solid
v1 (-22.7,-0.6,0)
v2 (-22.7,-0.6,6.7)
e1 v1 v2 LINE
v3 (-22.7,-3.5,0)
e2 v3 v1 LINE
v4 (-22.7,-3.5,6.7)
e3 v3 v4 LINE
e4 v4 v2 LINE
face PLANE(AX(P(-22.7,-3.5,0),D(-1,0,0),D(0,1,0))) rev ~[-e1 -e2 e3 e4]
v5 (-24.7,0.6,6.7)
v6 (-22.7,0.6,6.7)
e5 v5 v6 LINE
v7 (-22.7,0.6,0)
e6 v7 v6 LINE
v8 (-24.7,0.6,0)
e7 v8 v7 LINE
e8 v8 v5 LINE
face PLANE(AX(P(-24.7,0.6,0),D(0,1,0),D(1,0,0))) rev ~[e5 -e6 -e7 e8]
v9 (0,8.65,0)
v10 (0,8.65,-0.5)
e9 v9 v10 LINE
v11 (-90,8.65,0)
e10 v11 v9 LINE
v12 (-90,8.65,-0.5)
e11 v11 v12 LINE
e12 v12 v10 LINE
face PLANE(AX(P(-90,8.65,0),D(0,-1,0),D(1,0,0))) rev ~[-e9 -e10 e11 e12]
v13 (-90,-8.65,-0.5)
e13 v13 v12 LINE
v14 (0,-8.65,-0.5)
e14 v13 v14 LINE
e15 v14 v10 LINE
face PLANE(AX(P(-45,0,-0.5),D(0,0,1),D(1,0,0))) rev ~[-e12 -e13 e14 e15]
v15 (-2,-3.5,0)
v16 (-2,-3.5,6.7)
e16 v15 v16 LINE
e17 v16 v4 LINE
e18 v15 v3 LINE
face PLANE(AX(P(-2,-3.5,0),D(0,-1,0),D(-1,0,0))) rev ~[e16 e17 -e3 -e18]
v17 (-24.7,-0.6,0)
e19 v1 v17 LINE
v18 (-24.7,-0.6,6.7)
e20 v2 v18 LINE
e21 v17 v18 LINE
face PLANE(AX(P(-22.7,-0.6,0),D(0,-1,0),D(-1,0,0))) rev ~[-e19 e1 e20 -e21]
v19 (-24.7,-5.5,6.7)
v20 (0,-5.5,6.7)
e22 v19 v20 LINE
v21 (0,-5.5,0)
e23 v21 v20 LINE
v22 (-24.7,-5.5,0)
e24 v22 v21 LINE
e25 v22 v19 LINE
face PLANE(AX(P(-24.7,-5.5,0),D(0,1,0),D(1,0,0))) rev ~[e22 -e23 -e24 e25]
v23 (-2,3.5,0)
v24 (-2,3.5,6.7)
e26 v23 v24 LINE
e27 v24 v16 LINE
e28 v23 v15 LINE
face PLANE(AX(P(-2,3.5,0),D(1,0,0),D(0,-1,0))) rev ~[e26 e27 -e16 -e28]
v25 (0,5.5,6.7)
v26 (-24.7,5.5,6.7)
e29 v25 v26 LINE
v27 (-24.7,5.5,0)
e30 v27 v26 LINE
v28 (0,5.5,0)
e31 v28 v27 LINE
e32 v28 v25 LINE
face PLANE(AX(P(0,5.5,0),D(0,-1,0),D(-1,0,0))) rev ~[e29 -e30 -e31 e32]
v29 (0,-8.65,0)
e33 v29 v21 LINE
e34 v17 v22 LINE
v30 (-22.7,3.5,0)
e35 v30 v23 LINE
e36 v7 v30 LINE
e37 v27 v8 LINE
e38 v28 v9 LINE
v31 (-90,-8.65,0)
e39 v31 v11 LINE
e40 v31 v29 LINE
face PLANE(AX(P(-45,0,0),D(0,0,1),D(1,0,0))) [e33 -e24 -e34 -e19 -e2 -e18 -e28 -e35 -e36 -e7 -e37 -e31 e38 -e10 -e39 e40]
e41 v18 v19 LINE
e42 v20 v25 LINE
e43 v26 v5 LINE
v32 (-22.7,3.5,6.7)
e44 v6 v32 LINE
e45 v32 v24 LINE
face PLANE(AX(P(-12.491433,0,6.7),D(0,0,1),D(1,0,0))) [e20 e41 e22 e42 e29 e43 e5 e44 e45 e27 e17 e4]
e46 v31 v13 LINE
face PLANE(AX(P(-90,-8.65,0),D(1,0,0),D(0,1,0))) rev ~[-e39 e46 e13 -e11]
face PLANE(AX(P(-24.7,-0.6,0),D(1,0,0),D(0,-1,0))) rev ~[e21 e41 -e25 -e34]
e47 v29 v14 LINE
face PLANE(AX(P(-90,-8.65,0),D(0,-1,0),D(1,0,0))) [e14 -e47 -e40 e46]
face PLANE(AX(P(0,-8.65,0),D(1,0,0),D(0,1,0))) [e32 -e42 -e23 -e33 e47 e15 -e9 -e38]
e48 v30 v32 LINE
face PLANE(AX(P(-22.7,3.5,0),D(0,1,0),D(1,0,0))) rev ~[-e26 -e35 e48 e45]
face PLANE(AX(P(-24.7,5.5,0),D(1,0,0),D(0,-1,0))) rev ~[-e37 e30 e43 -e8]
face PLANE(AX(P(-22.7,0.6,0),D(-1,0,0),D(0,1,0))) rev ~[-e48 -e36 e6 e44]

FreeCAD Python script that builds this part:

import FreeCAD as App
import Part
import Sketcher

V = App.Vector
Q = App.Units.Quantity


def add_polygon(sketch, points):
    """Adds a closed chain of lines whose ends are joined by coincident constraints."""
    first, n = sketch.GeometryCount, len(points)
    for a, b in zip(points, points[1:] + points[:1]):
        sketch.addGeometry(Part.LineSegment(App.Vector(*a, 0), App.Vector(*b, 0)), False)
    for i in range(n):
        sketch.addConstraint(Sketcher.Constraint("Coincident", first + i, 2, first + (i + 1) % n, 1))

doc = App.newDocument("Part")
body = doc.addObject("PartDesign::Body", "Body")

sketch1 = doc.addObject("Sketcher::SketchObject", "Sketch")
body.addObject(sketch1)
sketch1.AttachmentSupport = (doc.XY_Plane, [""])
sketch1.MapMode = "FlatFace"
add_polygon(sketch1, [(-22.7, 3.5), (-2, 3.5), (-2, -3.5), (-22.7, -3.5), (-22.7, -0.6), (-24.7, -0.6), (-24.7, -5.5), (0, -5.5), (0, 5.5), (-24.7, 5.5), (-24.7, 0.6), (-22.7, 0.6)])
sketch1.addConstraint(Sketcher.Constraint("Horizontal", 0))
sketch1.addConstraint(Sketcher.Constraint("Vertical", 1))
sketch1.addConstraint(Sketcher.Constraint("Horizontal", 2))
sketch1.addConstraint(Sketcher.Constraint("Vertical", 3))
sketch1.addConstraint(Sketcher.Constraint("Horizontal", 4))
sketch1.addConstraint(Sketcher.Constraint("Vertical", 5))
sketch1.addConstraint(Sketcher.Constraint("Horizontal", 6))
sketch1.addConstraint(Sketcher.Constraint("Vertical", 7))
sketch1.addConstraint(Sketcher.Constraint("Horizontal", 8))
sketch1.addConstraint(Sketcher.Constraint("Vertical", 9))
sketch1.addConstraint(Sketcher.Constraint("Horizontal", 10))
sketch1.addConstraint(Sketcher.Constraint("Vertical", 11))
sketch1.addConstraint(Sketcher.Constraint("Symmetric", 6, 2, 7, 2, -1, 1))
sketch1.addConstraint(Sketcher.Constraint("Symmetric", 4, 2, 9, 2, -1))
sketch1.addConstraint(Sketcher.Constraint("Symmetric", 2, 2, 11, 2, -1))
sketch1.addConstraint(Sketcher.Constraint("DistanceX", 4, 2, 4, 1, Q("2 mm")))
sketch1.addConstraint(Sketcher.Constraint("DistanceY", 1, 2, 1, 1, Q("7 mm")))
sketch1.addConstraint(Sketcher.Constraint("DistanceY", 7, 1, 7, 2, Q("11 mm")))
sketch1.addConstraint(Sketcher.Constraint("DistanceX", 0, 1, 0, 2, Q("20.7 mm")))
sketch1.addConstraint(Sketcher.Constraint("DistanceX", 6, 1, 6, 2, Q("24.7 mm")))
sketch1.addConstraint(Sketcher.Constraint("DistanceY", 3, 1, 3, 2, Q("2.9 mm")))
pad1 = doc.addObject("PartDesign::Pad", "Pad")
body.addObject(pad1)
pad1.Profile = sketch1
pad1.Length = 6.7

sketch2 = doc.addObject("Sketcher::SketchObject", "Sketch001")
body.addObject(sketch2)
sketch2.AttachmentSupport = (doc.XY_Plane, [""])
sketch2.MapMode = "FlatFace"
add_polygon(sketch2, [(-90, 9), (-90, -9), (0, -9), (0, 9)])
sketch2.addConstraint(Sketcher.Constraint("Vertical", 0))
sketch2.addConstraint(Sketcher.Constraint("Horizontal", 1))
sketch2.addConstraint(Sketcher.Constraint("Vertical", 2))
sketch2.addConstraint(Sketcher.Constraint("Horizontal", 3))
sketch2.addConstraint(Sketcher.Constraint("Symmetric", 1, 2, 2, 2, -1, 1))
sketch2.addConstraint(Sketcher.Constraint("DistanceX", 1, 1, 1, 2, Q("90 mm")))
sketch2.addConstraint(Sketcher.Constraint("DistanceY", 0, 2, 0, 1, Q("17.3 mm")))
pad2 = doc.addObject("PartDesign::Pad", "Pad001")
body.addObject(pad2)
pad2.Profile = sketch2
pad2.Length = 0.5
pad2.Reversed = True

doc.recompute()
